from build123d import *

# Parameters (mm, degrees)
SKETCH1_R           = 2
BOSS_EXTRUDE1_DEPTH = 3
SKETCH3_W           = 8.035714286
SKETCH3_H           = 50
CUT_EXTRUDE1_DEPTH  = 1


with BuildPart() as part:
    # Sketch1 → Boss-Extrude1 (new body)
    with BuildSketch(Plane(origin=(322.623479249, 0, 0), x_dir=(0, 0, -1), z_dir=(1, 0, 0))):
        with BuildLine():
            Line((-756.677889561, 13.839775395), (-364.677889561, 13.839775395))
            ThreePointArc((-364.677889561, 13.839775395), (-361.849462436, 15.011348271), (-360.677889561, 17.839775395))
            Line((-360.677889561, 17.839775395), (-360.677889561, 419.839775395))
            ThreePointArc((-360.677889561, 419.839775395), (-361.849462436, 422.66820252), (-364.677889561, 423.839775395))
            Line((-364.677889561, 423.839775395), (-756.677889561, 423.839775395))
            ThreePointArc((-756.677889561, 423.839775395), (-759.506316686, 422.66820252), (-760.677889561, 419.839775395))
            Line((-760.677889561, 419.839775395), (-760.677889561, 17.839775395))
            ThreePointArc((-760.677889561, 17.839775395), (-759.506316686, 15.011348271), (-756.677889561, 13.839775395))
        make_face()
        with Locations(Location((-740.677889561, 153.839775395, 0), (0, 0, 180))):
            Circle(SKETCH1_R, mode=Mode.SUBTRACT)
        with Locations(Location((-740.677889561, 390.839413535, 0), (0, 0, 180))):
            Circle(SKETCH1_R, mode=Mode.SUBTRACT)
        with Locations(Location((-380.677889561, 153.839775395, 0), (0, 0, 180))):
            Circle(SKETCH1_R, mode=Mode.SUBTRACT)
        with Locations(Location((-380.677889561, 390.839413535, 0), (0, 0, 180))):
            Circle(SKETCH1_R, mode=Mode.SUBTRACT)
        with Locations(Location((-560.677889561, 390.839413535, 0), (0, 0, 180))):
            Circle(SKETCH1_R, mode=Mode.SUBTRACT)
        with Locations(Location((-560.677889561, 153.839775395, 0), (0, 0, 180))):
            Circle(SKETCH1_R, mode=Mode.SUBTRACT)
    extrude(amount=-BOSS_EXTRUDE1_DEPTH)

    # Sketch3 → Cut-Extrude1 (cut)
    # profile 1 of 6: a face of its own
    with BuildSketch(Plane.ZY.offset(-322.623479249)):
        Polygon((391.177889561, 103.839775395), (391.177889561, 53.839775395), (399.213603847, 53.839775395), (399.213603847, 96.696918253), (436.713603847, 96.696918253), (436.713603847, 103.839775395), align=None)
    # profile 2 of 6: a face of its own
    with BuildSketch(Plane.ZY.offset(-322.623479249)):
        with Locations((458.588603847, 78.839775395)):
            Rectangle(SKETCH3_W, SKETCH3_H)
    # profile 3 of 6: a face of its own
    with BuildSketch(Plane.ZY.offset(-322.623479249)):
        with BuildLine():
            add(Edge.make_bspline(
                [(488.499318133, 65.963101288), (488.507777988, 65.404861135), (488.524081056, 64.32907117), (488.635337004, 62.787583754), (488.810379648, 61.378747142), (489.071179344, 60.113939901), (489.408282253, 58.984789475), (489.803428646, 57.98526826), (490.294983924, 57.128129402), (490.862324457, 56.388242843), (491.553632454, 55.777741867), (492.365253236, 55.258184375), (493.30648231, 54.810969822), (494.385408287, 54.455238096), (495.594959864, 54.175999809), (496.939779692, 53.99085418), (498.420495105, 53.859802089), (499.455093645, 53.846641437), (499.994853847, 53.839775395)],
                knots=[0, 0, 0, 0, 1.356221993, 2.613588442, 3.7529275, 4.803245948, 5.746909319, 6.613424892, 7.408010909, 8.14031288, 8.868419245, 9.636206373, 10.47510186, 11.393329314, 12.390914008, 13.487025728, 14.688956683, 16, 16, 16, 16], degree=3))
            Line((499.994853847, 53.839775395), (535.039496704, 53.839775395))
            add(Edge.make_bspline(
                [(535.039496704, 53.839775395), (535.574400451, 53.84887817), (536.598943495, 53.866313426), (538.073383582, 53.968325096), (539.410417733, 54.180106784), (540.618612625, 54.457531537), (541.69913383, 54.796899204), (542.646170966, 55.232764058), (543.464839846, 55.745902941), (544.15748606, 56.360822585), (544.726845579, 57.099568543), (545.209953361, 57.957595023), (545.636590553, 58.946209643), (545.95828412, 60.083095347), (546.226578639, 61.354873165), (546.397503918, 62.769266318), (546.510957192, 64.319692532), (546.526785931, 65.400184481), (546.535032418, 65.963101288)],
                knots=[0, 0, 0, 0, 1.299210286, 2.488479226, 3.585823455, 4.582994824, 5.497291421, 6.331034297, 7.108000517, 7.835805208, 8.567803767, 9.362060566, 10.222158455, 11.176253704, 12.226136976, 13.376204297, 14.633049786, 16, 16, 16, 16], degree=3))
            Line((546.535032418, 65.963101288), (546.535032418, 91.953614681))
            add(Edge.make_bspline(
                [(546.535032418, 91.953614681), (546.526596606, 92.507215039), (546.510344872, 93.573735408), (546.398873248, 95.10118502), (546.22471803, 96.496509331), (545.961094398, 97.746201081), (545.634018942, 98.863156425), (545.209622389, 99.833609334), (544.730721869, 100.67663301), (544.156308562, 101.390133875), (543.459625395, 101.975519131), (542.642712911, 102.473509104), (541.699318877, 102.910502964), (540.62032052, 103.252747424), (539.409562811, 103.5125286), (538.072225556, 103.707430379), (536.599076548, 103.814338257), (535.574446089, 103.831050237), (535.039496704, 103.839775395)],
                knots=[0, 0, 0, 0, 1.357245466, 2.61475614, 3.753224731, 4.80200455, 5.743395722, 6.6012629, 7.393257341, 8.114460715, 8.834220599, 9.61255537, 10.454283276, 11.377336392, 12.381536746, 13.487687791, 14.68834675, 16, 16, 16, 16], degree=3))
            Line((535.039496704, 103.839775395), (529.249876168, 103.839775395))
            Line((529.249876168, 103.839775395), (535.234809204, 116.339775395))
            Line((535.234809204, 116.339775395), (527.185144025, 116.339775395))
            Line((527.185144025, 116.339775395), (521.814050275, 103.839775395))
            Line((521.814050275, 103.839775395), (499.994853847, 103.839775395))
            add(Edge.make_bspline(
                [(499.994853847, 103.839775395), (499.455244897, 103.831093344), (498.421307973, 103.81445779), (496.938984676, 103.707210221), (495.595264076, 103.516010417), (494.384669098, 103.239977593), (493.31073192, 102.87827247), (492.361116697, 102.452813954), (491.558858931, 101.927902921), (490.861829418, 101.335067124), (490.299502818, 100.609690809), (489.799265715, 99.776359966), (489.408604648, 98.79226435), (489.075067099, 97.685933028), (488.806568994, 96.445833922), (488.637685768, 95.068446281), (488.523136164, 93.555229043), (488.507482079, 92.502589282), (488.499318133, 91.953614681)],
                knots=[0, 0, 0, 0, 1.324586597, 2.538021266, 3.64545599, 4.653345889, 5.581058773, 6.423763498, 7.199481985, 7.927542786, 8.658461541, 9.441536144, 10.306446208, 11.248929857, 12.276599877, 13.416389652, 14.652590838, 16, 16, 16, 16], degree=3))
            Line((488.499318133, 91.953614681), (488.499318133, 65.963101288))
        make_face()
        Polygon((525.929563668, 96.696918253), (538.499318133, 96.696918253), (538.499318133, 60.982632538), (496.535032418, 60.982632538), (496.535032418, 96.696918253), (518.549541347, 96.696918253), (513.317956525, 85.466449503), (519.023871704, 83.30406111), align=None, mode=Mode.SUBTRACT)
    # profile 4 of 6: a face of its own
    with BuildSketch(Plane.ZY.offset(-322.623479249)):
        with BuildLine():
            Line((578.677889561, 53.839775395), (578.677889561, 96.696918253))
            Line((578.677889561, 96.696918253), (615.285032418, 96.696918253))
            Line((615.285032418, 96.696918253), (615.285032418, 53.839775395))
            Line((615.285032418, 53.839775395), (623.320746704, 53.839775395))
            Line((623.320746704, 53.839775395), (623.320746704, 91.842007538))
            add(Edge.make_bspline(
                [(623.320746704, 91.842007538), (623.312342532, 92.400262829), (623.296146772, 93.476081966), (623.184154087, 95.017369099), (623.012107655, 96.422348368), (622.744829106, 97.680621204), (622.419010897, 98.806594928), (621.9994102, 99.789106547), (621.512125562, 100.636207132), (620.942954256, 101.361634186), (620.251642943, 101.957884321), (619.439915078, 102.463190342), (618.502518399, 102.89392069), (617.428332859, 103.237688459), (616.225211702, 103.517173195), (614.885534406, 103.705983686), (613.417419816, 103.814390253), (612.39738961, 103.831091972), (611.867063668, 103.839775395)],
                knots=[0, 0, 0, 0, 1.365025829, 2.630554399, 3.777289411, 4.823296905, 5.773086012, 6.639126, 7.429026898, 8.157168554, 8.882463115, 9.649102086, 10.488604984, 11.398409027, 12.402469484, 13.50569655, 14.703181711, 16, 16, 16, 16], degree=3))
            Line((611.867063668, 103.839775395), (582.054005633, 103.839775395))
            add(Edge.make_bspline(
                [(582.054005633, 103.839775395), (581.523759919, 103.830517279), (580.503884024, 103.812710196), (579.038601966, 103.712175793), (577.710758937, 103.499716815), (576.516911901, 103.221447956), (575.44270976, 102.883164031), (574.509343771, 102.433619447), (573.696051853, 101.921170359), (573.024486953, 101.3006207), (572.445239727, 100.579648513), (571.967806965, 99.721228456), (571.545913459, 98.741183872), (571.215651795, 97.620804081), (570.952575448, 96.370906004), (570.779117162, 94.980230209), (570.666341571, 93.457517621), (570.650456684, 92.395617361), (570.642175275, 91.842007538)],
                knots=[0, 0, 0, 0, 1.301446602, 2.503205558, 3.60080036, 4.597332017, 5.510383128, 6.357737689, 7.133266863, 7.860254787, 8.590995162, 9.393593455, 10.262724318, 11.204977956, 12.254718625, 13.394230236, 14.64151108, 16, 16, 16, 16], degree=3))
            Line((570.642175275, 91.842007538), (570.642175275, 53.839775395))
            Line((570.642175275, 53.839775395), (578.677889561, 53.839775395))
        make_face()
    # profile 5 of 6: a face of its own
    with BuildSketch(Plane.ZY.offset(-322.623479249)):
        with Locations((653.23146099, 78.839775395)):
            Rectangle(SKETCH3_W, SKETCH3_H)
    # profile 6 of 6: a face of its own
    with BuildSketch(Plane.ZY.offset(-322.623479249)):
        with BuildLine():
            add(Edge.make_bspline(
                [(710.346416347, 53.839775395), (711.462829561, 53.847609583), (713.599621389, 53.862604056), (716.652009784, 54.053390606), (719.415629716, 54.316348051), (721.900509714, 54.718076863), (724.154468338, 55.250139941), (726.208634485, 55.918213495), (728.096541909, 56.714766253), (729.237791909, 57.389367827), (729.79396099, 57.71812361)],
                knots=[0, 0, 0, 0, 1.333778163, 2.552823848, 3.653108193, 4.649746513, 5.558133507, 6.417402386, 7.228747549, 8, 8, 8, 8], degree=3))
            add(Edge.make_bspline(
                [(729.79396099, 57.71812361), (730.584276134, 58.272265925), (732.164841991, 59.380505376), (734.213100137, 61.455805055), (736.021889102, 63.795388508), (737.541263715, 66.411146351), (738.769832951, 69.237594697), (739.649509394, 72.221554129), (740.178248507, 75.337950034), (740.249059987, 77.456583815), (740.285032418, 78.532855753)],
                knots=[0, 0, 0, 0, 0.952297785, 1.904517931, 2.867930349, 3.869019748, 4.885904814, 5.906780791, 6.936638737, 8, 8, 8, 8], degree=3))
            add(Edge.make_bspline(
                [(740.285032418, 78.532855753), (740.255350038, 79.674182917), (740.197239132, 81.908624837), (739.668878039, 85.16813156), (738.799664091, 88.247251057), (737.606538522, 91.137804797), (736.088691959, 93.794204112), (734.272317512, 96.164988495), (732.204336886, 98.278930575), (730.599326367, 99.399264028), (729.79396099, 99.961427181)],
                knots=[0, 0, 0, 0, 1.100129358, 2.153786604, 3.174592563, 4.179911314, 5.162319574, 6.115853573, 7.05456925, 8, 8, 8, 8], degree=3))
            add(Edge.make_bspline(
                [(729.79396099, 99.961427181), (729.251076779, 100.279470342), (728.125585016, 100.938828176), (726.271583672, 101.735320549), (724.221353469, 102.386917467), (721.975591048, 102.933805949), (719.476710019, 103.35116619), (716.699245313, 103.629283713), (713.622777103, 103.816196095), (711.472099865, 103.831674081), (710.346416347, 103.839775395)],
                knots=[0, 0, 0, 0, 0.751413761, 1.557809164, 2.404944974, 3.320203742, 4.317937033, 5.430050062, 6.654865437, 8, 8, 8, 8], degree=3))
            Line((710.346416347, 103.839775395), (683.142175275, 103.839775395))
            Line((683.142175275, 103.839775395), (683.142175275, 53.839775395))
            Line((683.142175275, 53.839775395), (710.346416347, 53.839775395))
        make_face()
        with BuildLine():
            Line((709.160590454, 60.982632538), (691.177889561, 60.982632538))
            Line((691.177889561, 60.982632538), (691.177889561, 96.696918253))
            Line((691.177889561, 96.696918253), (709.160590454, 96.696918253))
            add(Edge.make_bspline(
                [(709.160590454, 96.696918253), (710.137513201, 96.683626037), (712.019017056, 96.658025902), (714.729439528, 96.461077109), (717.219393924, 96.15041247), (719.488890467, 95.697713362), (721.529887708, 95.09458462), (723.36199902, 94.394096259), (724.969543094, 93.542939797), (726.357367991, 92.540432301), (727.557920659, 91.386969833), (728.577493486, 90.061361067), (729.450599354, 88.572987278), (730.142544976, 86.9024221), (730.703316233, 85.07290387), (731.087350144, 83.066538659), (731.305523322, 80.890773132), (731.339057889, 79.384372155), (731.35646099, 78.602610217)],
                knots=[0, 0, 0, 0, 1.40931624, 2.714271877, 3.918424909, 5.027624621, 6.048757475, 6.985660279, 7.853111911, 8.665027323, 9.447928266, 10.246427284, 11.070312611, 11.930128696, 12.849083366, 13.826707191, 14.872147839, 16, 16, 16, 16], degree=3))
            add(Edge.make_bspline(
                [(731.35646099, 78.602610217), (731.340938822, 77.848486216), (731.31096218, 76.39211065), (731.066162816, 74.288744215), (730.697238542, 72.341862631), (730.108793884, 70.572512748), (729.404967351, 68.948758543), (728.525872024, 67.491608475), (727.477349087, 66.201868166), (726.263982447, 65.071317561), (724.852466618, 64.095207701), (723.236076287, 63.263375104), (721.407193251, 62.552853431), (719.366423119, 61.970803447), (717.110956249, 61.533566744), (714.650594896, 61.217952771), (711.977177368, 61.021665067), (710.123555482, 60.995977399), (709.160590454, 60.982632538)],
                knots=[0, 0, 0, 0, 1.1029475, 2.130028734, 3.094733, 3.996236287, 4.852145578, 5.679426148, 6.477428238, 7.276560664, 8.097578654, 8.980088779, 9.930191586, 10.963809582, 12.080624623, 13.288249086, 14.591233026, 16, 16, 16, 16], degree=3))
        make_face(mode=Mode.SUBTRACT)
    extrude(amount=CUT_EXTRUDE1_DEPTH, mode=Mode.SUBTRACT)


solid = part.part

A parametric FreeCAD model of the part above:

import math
import FreeCAD as App
import Part
import Sketcher

V = App.Vector


def add_polygon(sketch, points):
    """Adds a closed chain of lines whose ends are joined by coincident constraints."""
    first, n = sketch.GeometryCount, len(points)
    for a, b in zip(points, points[1:] + points[:1]):
        sketch.addGeometry(Part.LineSegment(App.Vector(*a, 0), App.Vector(*b, 0)), False)
    for i in range(n):
        sketch.addConstraint(Sketcher.Constraint("Coincident", first + i, 2, first + (i + 1) % n, 1))

doc = App.newDocument("Part")
params = doc.addObject("Spreadsheet::Sheet", "Params")
for row, (alias, value) in enumerate([
    ("sketch1_diameter", "4 mm"),
    ("sketch1_radius", "4 mm"),
    ("sketch1_width", "402 mm"),
    ("sketch1_height", "392 mm"),
    ("pad1_length", "3 mm"),
    ("sketch2_width", "50 mm"),
    ("sketch2_width2", "50 mm"),
    ("sketch2_width3", "50 mm"),
    ("sketch2_height", "37.5 mm"),
    ("pocket1_length", "1 mm"),
], start=1):
    params.set(f"A{row}", alias)
    params.set(f"B{row}", "=" + value)
    params.setAlias(f"B{row}", alias)

body = doc.addObject("PartDesign::Body", "Body")

sketch1 = doc.addObject("Sketcher::SketchObject", "Sketch")
body.addObject(sketch1)
sketch1.AttachmentSupport = (doc.YZ_Plane, [""])
sketch1.MapMode = "FlatFace"
sketch1.AttachmentOffset = App.Placement(V(0, 0, 322.623479), App.Rotation())
sketch1.addGeometry([
    Part.LineSegment(V(13.839775, 756.67789, 0), V(13.839775, 364.67789, 0)),
    Part.ArcOfCircle(Part.Circle(V(17.839775, 364.67789, 0), V(0, 0, 1), 4), math.radians(-180), math.radians(-90)),
    Part.LineSegment(V(17.839775, 360.67789, 0), V(419.839775, 360.67789, 0)),
    Part.ArcOfCircle(Part.Circle(V(419.839775, 364.67789, 0), V(0, 0, 1), 4), math.radians(-90), math.radians(0)),
    Part.LineSegment(V(423.839775, 364.67789, 0), V(423.839775, 756.67789, 0)),
    Part.ArcOfCircle(Part.Circle(V(419.839775, 756.67789, 0), V(0, 0, 1), 4), math.radians(0), math.radians(90)),
    Part.LineSegment(V(419.839775, 760.67789, 0), V(17.839775, 760.67789, 0)),
    Part.ArcOfCircle(Part.Circle(V(17.839775, 756.67789, 0), V(0, 0, 1), 4), math.radians(90), math.radians(180)),
    Part.Circle(V(153.839775, 740.67789, 0), V(0, 0, 1), 2),
    Part.Circle(V(153.839775, 560.67789, 0), V(0, 0, 1), 2),
    Part.Circle(V(153.839775, 380.67789, 0), V(0, 0, 1), 2),
    Part.Circle(V(390.839414, 740.67789, 0), V(0, 0, 1), 2),
    Part.Circle(V(390.839414, 560.67789, 0), V(0, 0, 1), 2),
    Part.Circle(V(390.839414, 380.67789, 0), V(0, 0, 1), 2),
], False)
sketch1.addConstraint([
    Sketcher.Constraint("Tangent", 0, 2, 1, 1),
    Sketcher.Constraint("Tangent", 1, 2, 2, 1),
    Sketcher.Constraint("Tangent", 2, 2, 3, 1),
    Sketcher.Constraint("Tangent", 3, 2, 4, 1),
    Sketcher.Constraint("Tangent", 4, 2, 5, 1),
    Sketcher.Constraint("Tangent", 5, 2, 6, 1),
    Sketcher.Constraint("Tangent", 6, 2, 7, 1),
    Sketcher.Constraint("Tangent", 7, 2, 0, 1),
    Sketcher.Constraint("Vertical", 0),
    Sketcher.Constraint("Horizontal", 2),
    Sketcher.Constraint("Vertical", 4),
    Sketcher.Constraint("Horizontal", 6),
    Sketcher.Constraint("Equal", 1, 3),
    Sketcher.Constraint("Equal", 3, 5),
    Sketcher.Constraint("Equal", 5, 7),
    Sketcher.Constraint("Equal", 8, 9),
    Sketcher.Constraint("Equal", 9, 10),
    Sketcher.Constraint("Equal", 10, 11),
    Sketcher.Constraint("Equal", 11, 12),
    Sketcher.Constraint("Equal", 12, 13),
    Sketcher.Constraint("Horizontal", 8, 3, 11, 3),
    Sketcher.Constraint("Horizontal", 9, 3, 12, 3),
    Sketcher.Constraint("Horizontal", 10, 3, 13, 3),
    Sketcher.Constraint("Vertical", 8, 3, 9, 3),
    Sketcher.Constraint("Vertical", 9, 3, 10, 3),
    Sketcher.Constraint("Vertical", 11, 3, 12, 3),
    Sketcher.Constraint("Vertical", 12, 3, 13, 3),
    Sketcher.Constraint("Diameter", 8, 4.0),
    Sketcher.Constraint("Radius", 1, 4.0),
    Sketcher.Constraint("DistanceX", 2, 1, 2, 2, 402.0),
    Sketcher.Constraint("DistanceY", 0, 2, 0, 1, 392.0),
    Sketcher.Constraint("DistanceX", 7, 3, 8, 3, 136.0),
    Sketcher.Constraint("DistanceY", 8, 3, 7, 3, 16.0),
    Sketcher.Constraint("DistanceY", 9, 3, 8, 3, 180.0),
    Sketcher.Constraint("DistanceY", 1, 3, 10, 3, 16.0),
    Sketcher.Constraint("DistanceY", -1, 1, 1, 3, 364.67789),
    Sketcher.Constraint("DistanceX", 11, 3, 5, 3, 29.000362),
    Sketcher.Constraint("DistanceX", -1, 1, 1, 3, 17.839775),
])
sketch1.setExpression("Constraints[27]", "Params.sketch1_diameter")
sketch1.setExpression("Constraints[28]", "Params.sketch1_radius")
sketch1.setExpression("Constraints[29]", "Params.sketch1_width")
sketch1.setExpression("Constraints[30]", "Params.sketch1_height")
pad1 = doc.addObject("PartDesign::Pad", "Pad")
body.addObject(pad1)
pad1.Profile = sketch1
pad1.setExpression("Length", "Params.pad1_length")
pad1.Reversed = True

sketch2 = doc.addObject("Sketcher::SketchObject", "Sketch001")
body.addObject(sketch2)
sketch2.AttachmentSupport = (doc.YZ_Plane, [""])
sketch2.MapMode = "FlatFace"
sketch2.AttachmentOffset = App.Placement(V(0, 0, 322.623479), App.Rotation())
add_polygon(sketch2, [(103.839775, 391.17789), (53.839775, 391.17789), (53.839775, 399.213604), (96.696918, 399.213604), (96.696918, 436.713604), (103.839775, 436.713604)])
add_polygon(sketch2, [(103.839775, 454.570747), (53.839775, 454.570747), (53.839775, 462.606461), (103.839775, 462.606461)])
sketch2.addGeometry(Part.BSplineCurve([V(65.963101, 488.499318, 0), V(65.404861, 488.507778, 0), V(64.329071, 488.524081, 0), V(62.787584, 488.635337, 0), V(61.378747, 488.81038, 0), V(60.11394, 489.071179, 0), V(58.984789, 489.408282, 0), V(57.985268, 489.803429, 0), V(57.128129, 490.294984, 0), V(56.388243, 490.862324, 0), V(55.777742, 491.553632, 0), V(55.258184, 492.365253, 0), V(54.81097, 493.306482, 0), V(54.455238, 494.385408, 0), V(54.176, 495.59496, 0), V(53.990854, 496.93978, 0), V(53.859802, 498.420495, 0), V(53.846641, 499.455094, 0), V(53.839775, 499.994854, 0)], [4, 1, 1, 1, 1, 1, 1, 1, 1, 1, 1, 1, 1, 1, 1, 1, 4], [0, 1.356221993, 2.613588442, 3.7529275, 4.803245948, 5.746909319, 6.613424892, 7.408010909, 8.14031288, 8.868419245, 9.636206373, 10.47510186, 11.393329314, 12.390914008, 13.487025728, 14.688956683, 16], False, 3, [1, 1, 1, 1, 1, 1, 1, 1, 1, 1, 1, 1, 1, 1, 1, 1, 1, 1, 1], False), False)
sketch2.addGeometry(Part.LineSegment(V(53.839775, 499.994854, 0), V(53.839775, 535.039497, 0)), False)
sketch2.addGeometry(Part.BSplineCurve([V(53.839775, 535.039497, 0), V(53.848878, 535.5744, 0), V(53.866313, 536.598943, 0), V(53.968325, 538.073384, 0), V(54.180107, 539.410418, 0), V(54.457532, 540.618613, 0), V(54.796899, 541.699134, 0), V(55.232764, 542.646171, 0), V(55.745903, 543.46484, 0), V(56.360823, 544.157486, 0), V(57.099569, 544.726846, 0), V(57.957595, 545.209953, 0), V(58.94621, 545.636591, 0), V(60.083095, 545.958284, 0), V(61.354873, 546.226579, 0), V(62.769266, 546.397504, 0), V(64.319693, 546.510957, 0), V(65.400184, 546.526786, 0), V(65.963101, 546.535032, 0)], [4, 1, 1, 1, 1, 1, 1, 1, 1, 1, 1, 1, 1, 1, 1, 1, 4], [0, 1.299210286, 2.488479226, 3.585823455, 4.582994824, 5.497291421, 6.331034297, 7.108000517, 7.835805208, 8.567803767, 9.362060566, 10.222158455, 11.176253704, 12.226136976, 13.376204297, 14.633049786, 16], False, 3, [1, 1, 1, 1, 1, 1, 1, 1, 1, 1, 1, 1, 1, 1, 1, 1, 1, 1, 1], False), False)
sketch2.addGeometry(Part.LineSegment(V(65.963101, 546.535032, 0), V(91.953615, 546.535032, 0)), False)
sketch2.addGeometry(Part.BSplineCurve([V(91.953615, 546.535032, 0), V(92.507215, 546.526597, 0), V(93.573735, 546.510345, 0), V(95.101185, 546.398873, 0), V(96.496509, 546.224718, 0), V(97.746201, 545.961094, 0), V(98.863156, 545.634019, 0), V(99.833609, 545.209622, 0), V(100.676633, 544.730722, 0), V(101.390134, 544.156309, 0), V(101.975519, 543.459625, 0), V(102.473509, 542.642713, 0), V(102.910503, 541.699319, 0), V(103.252747, 540.620321, 0), V(103.512529, 539.409563, 0), V(103.70743, 538.072226, 0), V(103.814338, 536.599077, 0), V(103.83105, 535.574446, 0), V(103.839775, 535.039497, 0)], [4, 1, 1, 1, 1, 1, 1, 1, 1, 1, 1, 1, 1, 1, 1, 1, 4], [0, 1.357245466, 2.61475614, 3.753224731, 4.80200455, 5.743395722, 6.6012629, 7.393257341, 8.114460715, 8.834220599, 9.61255537, 10.454283276, 11.377336392, 12.381536746, 13.487687791, 14.68834675, 16], False, 3, [1, 1, 1, 1, 1, 1, 1, 1, 1, 1, 1, 1, 1, 1, 1, 1, 1, 1, 1], False), False)
sketch2.addGeometry(Part.LineSegment(V(103.839775, 535.039497, 0), V(103.839775, 529.249876, 0)), False)
sketch2.addGeometry(Part.LineSegment(V(103.839775, 529.249876, 0), V(116.339775, 535.234809, 0)), False)
sketch2.addGeometry(Part.LineSegment(V(116.339775, 535.234809, 0), V(116.339775, 527.185144, 0)), False)
sketch2.addGeometry(Part.LineSegment(V(116.339775, 527.185144, 0), V(103.839775, 521.81405, 0)), False)
sketch2.addGeometry(Part.LineSegment(V(103.839775, 521.81405, 0), V(103.839775, 499.994854, 0)), False)
sketch2.addGeometry(Part.BSplineCurve([V(103.839775, 499.994854, 0), V(103.831093, 499.455245, 0), V(103.814458, 498.421308, 0), V(103.70721, 496.938985, 0), V(103.51601, 495.595264, 0), V(103.239978, 494.384669, 0), V(102.878272, 493.310732, 0), V(102.452814, 492.361117, 0), V(101.927903, 491.558859, 0), V(101.335067, 490.861829, 0), V(100.609691, 490.299503, 0), V(99.77636, 489.799266, 0), V(98.792264, 489.408605, 0), V(97.685933, 489.075067, 0), V(96.445834, 488.806569, 0), V(95.068446, 488.637686, 0), V(93.555229, 488.523136, 0), V(92.502589, 488.507482, 0), V(91.953615, 488.499318, 0)], [4, 1, 1, 1, 1, 1, 1, 1, 1, 1, 1, 1, 1, 1, 1, 1, 4], [0, 1.324586597, 2.538021266, 3.64545599, 4.653345889, 5.581058773, 6.423763498, 7.199481985, 7.927542786, 8.658461541, 9.441536144, 10.306446208, 11.248929857, 12.276599877, 13.416389652, 14.652590838, 16], False, 3, [1, 1, 1, 1, 1, 1, 1, 1, 1, 1, 1, 1, 1, 1, 1, 1, 1, 1, 1], False), False)
sketch2.addGeometry(Part.LineSegment(V(91.953615, 488.499318, 0), V(65.963101, 488.499318, 0)), False)
add_polygon(sketch2, [(83.304061, 519.023872), (96.696918, 525.929564), (96.696918, 538.499318), (60.982633, 538.499318), (60.982633, 496.535032), (96.696918, 496.535032), (96.696918, 518.549541), (85.46645, 513.317957)])
sketch2.addGeometry(Part.LineSegment(V(53.839775, 578.67789, 0), V(96.696918, 578.67789, 0)), False)
sketch2.addGeometry(Part.LineSegment(V(96.696918, 578.67789, 0), V(96.696918, 615.285032, 0)), False)
sketch2.addGeometry(Part.LineSegment(V(96.696918, 615.285032, 0), V(53.839775, 615.285032, 0)), False)
sketch2.addGeometry(Part.LineSegment(V(53.839775, 615.285032, 0), V(53.839775, 623.320747, 0)), False)
sketch2.addGeometry(Part.LineSegment(V(53.839775, 623.320747, 0), V(91.842008, 623.320747, 0)), False)
sketch2.addGeometry(Part.BSplineCurve([V(91.842008, 623.320747, 0), V(92.400263, 623.312343, 0), V(93.476082, 623.296147, 0), V(95.017369, 623.184154, 0), V(96.422348, 623.012108, 0), V(97.680621, 622.744829, 0), V(98.806595, 622.419011, 0), V(99.789107, 621.99941, 0), V(100.636207, 621.512126, 0), V(101.361634, 620.942954, 0), V(101.957884, 620.251643, 0), V(102.46319, 619.439915, 0), V(102.893921, 618.502518, 0), V(103.237688, 617.428333, 0), V(103.517173, 616.225212, 0), V(103.705984, 614.885534, 0), V(103.81439, 613.41742, 0), V(103.831092, 612.39739, 0), V(103.839775, 611.867064, 0)], [4, 1, 1, 1, 1, 1, 1, 1, 1, 1, 1, 1, 1, 1, 1, 1, 4], [0, 1.365025829, 2.630554399, 3.777289411, 4.823296905, 5.773086012, 6.639126, 7.429026898, 8.157168554, 8.882463115, 9.649102086, 10.488604984, 11.398409027, 12.402469484, 13.50569655, 14.703181711, 16], False, 3, [1, 1, 1, 1, 1, 1, 1, 1, 1, 1, 1, 1, 1, 1, 1, 1, 1, 1, 1], False), False)
sketch2.addGeometry(Part.LineSegment(V(103.839775, 611.867064, 0), V(103.839775, 582.054006, 0)), False)
sketch2.addGeometry(Part.BSplineCurve([V(103.839775, 582.054006, 0), V(103.830517, 581.52376, 0), V(103.81271, 580.503884, 0), V(103.712176, 579.038602, 0), V(103.499717, 577.710759, 0), V(103.221448, 576.516912, 0), V(102.883164, 575.44271, 0), V(102.433619, 574.509344, 0), V(101.92117, 573.696052, 0), V(101.300621, 573.024487, 0), V(100.579649, 572.44524, 0), V(99.721228, 571.967807, 0), V(98.741184, 571.545913, 0), V(97.620804, 571.215652, 0), V(96.370906, 570.952575, 0), V(94.98023, 570.779117, 0), V(93.457518, 570.666342, 0), V(92.395617, 570.650457, 0), V(91.842008, 570.642175, 0)], [4, 1, 1, 1, 1, 1, 1, 1, 1, 1, 1, 1, 1, 1, 1, 1, 4], [0, 1.301446602, 2.503205558, 3.60080036, 4.597332017, 5.510383128, 6.357737689, 7.133266863, 7.860254787, 8.590995162, 9.393593455, 10.262724318, 11.204977956, 12.254718625, 13.394230236, 14.64151108, 16], False, 3, [1, 1, 1, 1, 1, 1, 1, 1, 1, 1, 1, 1, 1, 1, 1, 1, 1, 1, 1], False), False)
sketch2.addGeometry(Part.LineSegment(V(91.842008, 570.642175, 0), V(53.839775, 570.642175, 0)), False)
sketch2.addGeometry(Part.LineSegment(V(53.839775, 570.642175, 0), V(53.839775, 578.67789, 0)), False)
add_polygon(sketch2, [(103.839775, 649.213604), (53.839775, 649.213604), (53.839775, 657.249318), (103.839775, 657.249318)])
sketch2.addGeometry(Part.BSplineCurve([V(53.839775, 710.346416, 0), V(53.84761, 711.46283, 0), V(53.862604, 713.599621, 0), V(54.053391, 716.65201, 0), V(54.316348, 719.41563, 0), V(54.718077, 721.90051, 0), V(55.25014, 724.154468, 0), V(55.918213, 726.208634, 0), V(56.714766, 728.096542, 0), V(57.389368, 729.237792, 0), V(57.718124, 729.793961, 0)], [4, 1, 1, 1, 1, 1, 1, 1, 4], [0, 1.333778163, 2.552823848, 3.653108193, 4.649746513, 5.558133507, 6.417402386, 7.228747549, 8], False, 3, [1, 1, 1, 1, 1, 1, 1, 1, 1, 1, 1], False), False)
sketch2.addGeometry(Part.BSplineCurve([V(57.718124, 729.793961, 0), V(58.272266, 730.584276, 0), V(59.380505, 732.164842, 0), V(61.455805, 734.2131, 0), V(63.795389, 736.021889, 0), V(66.411146, 737.541264, 0), V(69.237595, 738.769833, 0), V(72.221554, 739.649509, 0), V(75.33795, 740.178249, 0), V(77.456584, 740.24906, 0), V(78.532856, 740.285032, 0)], [4, 1, 1, 1, 1, 1, 1, 1, 4], [0, 0.952297785, 1.904517931, 2.867930349, 3.869019748, 4.885904814, 5.906780791, 6.936638737, 8], False, 3, [1, 1, 1, 1, 1, 1, 1, 1, 1, 1, 1], False), False)
sketch2.addGeometry(Part.BSplineCurve([V(78.532856, 740.285032, 0), V(79.674183, 740.25535, 0), V(81.908625, 740.197239, 0), V(85.168132, 739.668878, 0), V(88.247251, 738.799664, 0), V(91.137805, 737.606539, 0), V(93.794204, 736.088692, 0), V(96.164988, 734.272318, 0), V(98.278931, 732.204337, 0), V(99.399264, 730.599326, 0), V(99.961427, 729.793961, 0)], [4, 1, 1, 1, 1, 1, 1, 1, 4], [0, 1.100129358, 2.153786604, 3.174592563, 4.179911314, 5.162319574, 6.115853573, 7.05456925, 8], False, 3, [1, 1, 1, 1, 1, 1, 1, 1, 1, 1, 1], False), False)
sketch2.addGeometry(Part.BSplineCurve([V(99.961427, 729.793961, 0), V(100.27947, 729.251077, 0), V(100.938828, 728.125585, 0), V(101.735321, 726.271584, 0), V(102.386917, 724.221353, 0), V(102.933806, 721.975591, 0), V(103.351166, 719.47671, 0), V(103.629284, 716.699245, 0), V(103.816196, 713.622777, 0), V(103.831674, 711.4721, 0), V(103.839775, 710.346416, 0)], [4, 1, 1, 1, 1, 1, 1, 1, 4], [0, 0.751413761, 1.557809164, 2.404944974, 3.320203742, 4.317937033, 5.430050062, 6.654865437, 8], False, 3, [1, 1, 1, 1, 1, 1, 1, 1, 1, 1, 1], False), False)
sketch2.addGeometry(Part.LineSegment(V(103.839775, 710.346416, 0), V(103.839775, 683.142175, 0)), False)
sketch2.addGeometry(Part.LineSegment(V(103.839775, 683.142175, 0), V(53.839775, 683.142175, 0)), False)
sketch2.addGeometry(Part.LineSegment(V(53.839775, 683.142175, 0), V(53.839775, 710.346416, 0)), False)
sketch2.addGeometry(Part.BSplineCurve([V(78.60261, 731.356461, 0), V(77.848486, 731.340939, 0), V(76.392111, 731.310962, 0), V(74.288744, 731.066163, 0), V(72.341863, 730.697239, 0), V(70.572513, 730.108794, 0), V(68.948759, 729.404967, 0), V(67.491608, 728.525872, 0), V(66.201868, 727.477349, 0), V(65.071318, 726.263982, 0), V(64.095208, 724.852467, 0), V(63.263375, 723.236076, 0), V(62.552853, 721.407193, 0), V(61.970803, 719.366423, 0), V(61.533567, 717.110956, 0), V(61.217953, 714.650595, 0), V(61.021665, 711.977177, 0), V(60.995977, 710.123555, 0), V(60.982633, 709.16059, 0)], [4, 1, 1, 1, 1, 1, 1, 1, 1, 1, 1, 1, 1, 1, 1, 1, 4], [0, 1.1029475, 2.130028734, 3.094733, 3.996236287, 4.852145578, 5.679426148, 6.477428238, 7.276560664, 8.097578654, 8.980088779, 9.930191586, 10.963809582, 12.080624623, 13.288249086, 14.591233026, 16], False, 3, [1, 1, 1, 1, 1, 1, 1, 1, 1, 1, 1, 1, 1, 1, 1, 1, 1, 1, 1], False), False)
sketch2.addGeometry(Part.LineSegment(V(60.982633, 709.16059, 0), V(60.982633, 691.17789, 0)), False)
sketch2.addGeometry(Part.LineSegment(V(60.982633, 691.17789, 0), V(96.696918, 691.17789, 0)), False)
sketch2.addGeometry(Part.LineSegment(V(96.696918, 691.17789, 0), V(96.696918, 709.16059, 0)), False)
sketch2.addGeometry(Part.BSplineCurve([V(96.696918, 709.16059, 0), V(96.683626, 710.137513, 0), V(96.658026, 712.019017, 0), V(96.461077, 714.72944, 0), V(96.150412, 717.219394, 0), V(95.697713, 719.48889, 0), V(95.094585, 721.529888, 0), V(94.394096, 723.361999, 0), V(93.54294, 724.969543, 0), V(92.540432, 726.357368, 0), V(91.38697, 727.557921, 0), V(90.061361, 728.577493, 0), V(88.572987, 729.450599, 0), V(86.902422, 730.142545, 0), V(85.072904, 730.703316, 0), V(83.066539, 731.08735, 0), V(80.890773, 731.305523, 0), V(79.384372, 731.339058, 0), V(78.60261, 731.356461, 0)], [4, 1, 1, 1, 1, 1, 1, 1, 1, 1, 1, 1, 1, 1, 1, 1, 4], [0, 1.40931624, 2.714271877, 3.918424909, 5.027624621, 6.048757475, 6.985660279, 7.853111911, 8.665027323, 9.447928266, 10.246427284, 11.070312611, 11.930128696, 12.849083366, 13.826707191, 14.872147839, 16], False, 3, [1, 1, 1, 1, 1, 1, 1, 1, 1, 1, 1, 1, 1, 1, 1, 1, 1, 1, 1], False), False)
sketch2.addConstraint([
    Sketcher.Constraint("Block", 10),
    Sketcher.Constraint("Block", 12),
    Sketcher.Constraint("Block", 14),
    Sketcher.Constraint("Block", 20),
    Sketcher.Constraint("Block", 35),
    Sketcher.Constraint("Block", 37),
    Sketcher.Constraint("Block", 44),
    Sketcher.Constraint("Block", 45),
    Sketcher.Constraint("Block", 46),
    Sketcher.Constraint("Block", 47),
    Sketcher.Constraint("Block", 51),
    Sketcher.Constraint("Block", 55),
    Sketcher.Constraint("Coincident", 10, 2, 11, 1),
    Sketcher.Constraint("Coincident", 11, 2, 12, 1),
    Sketcher.Constraint("Coincident", 12, 2, 13, 1),
    Sketcher.Constraint("Coincident", 13, 2, 14, 1),
    Sketcher.Constraint("Coincident", 14, 2, 15, 1),
    Sketcher.Constraint("Coincident", 15, 2, 16, 1),
    Sketcher.Constraint("Coincident", 16, 2, 17, 1),
    Sketcher.Constraint("Coincident", 17, 2, 18, 1),
    Sketcher.Constraint("Coincident", 18, 2, 19, 1),
    Sketcher.Constraint("Coincident", 19, 2, 20, 1),
    Sketcher.Constraint("Coincident", 20, 2, 21, 1),
    Sketcher.Constraint("Coincident", 21, 2, 10, 1),
    Sketcher.Constraint("Coincident", 30, 2, 31, 1),
    Sketcher.Constraint("Coincident", 31, 2, 32, 1),
    Sketcher.Constraint("Coincident", 32, 2, 33, 1),
    Sketcher.Constraint("Coincident", 33, 2, 34, 1),
    Sketcher.Constraint("Coincident", 34, 2, 35, 1),
    Sketcher.Constraint("Coincident", 35, 2, 36, 1),
    Sketcher.Constraint("Coincident", 36, 2, 37, 1),
    Sketcher.Constraint("Coincident", 37, 2, 38, 1),
    Sketcher.Constraint("Coincident", 38, 2, 39, 1),
    Sketcher.Constraint("Coincident", 39, 2, 30, 1),
    Sketcher.Constraint("Coincident", 47, 2, 48, 1),
    Sketcher.Constraint("Coincident", 48, 2, 49, 1),
    Sketcher.Constraint("Coincident", 49, 2, 50, 1),
    Sketcher.Constraint("Coincident", 50, 2, 44, 1),
    Sketcher.Constraint("Coincident", 51, 2, 52, 1),
    Sketcher.Constraint("Coincident", 52, 2, 53, 1),
    Sketcher.Constraint("Coincident", 53, 2, 54, 1),
    Sketcher.Constraint("Coincident", 54, 2, 55, 1),
    Sketcher.Constraint("Horizontal", 0),
    Sketcher.Constraint("Vertical", 1),
    Sketcher.Constraint("Horizontal", 2),
    Sketcher.Constraint("Vertical", 3),
    Sketcher.Constraint("Horizontal", 4),
    Sketcher.Constraint("Vertical", 5),
    Sketcher.Constraint("Horizontal", 6),
    Sketcher.Constraint("Vertical", 7),
    Sketcher.Constraint("Horizontal", 8),
    Sketcher.Constraint("Vertical", 9),
    Sketcher.Constraint("Vertical", 15),
    Sketcher.Constraint("Vertical", 17),
    Sketcher.Constraint("Vertical", 19),
    Sketcher.Constraint("Vertical", 23),
    Sketcher.Constraint("Horizontal", 24),
    Sketcher.Constraint("Vertical", 25),
    Sketcher.Constraint("Horizontal", 26),
    Sketcher.Constraint("Vertical", 27),
    Sketcher.Constraint("Horizontal", 30),
    Sketcher.Constraint("Vertical", 31),
    Sketcher.Constraint("Horizontal", 32),
    Sketcher.Constraint("Vertical", 33),
    Sketcher.Constraint("Horizontal", 34),
    Sketcher.Constraint("Horizontal", 38),
    Sketcher.Constraint("Vertical", 39),
    Sketcher.Constraint("Horizontal", 40),
    Sketcher.Constraint("Vertical", 41),
    Sketcher.Constraint("Horizontal", 42),
    Sketcher.Constraint("Vertical", 43),
    Sketcher.Constraint("Vertical", 48),
    Sketcher.Constraint("Horizontal", 49),
    Sketcher.Constraint("Vertical", 50),
    Sketcher.Constraint("Vertical", 52),
    Sketcher.Constraint("Horizontal", 53),
    Sketcher.Constraint("Vertical", 54),
    Sketcher.Constraint("DistanceX", 0, 2, 0, 1, 50.0),
    Sketcher.Constraint("DistanceX", 6, 2, 6, 1, 50.0),
    Sketcher.Constraint("DistanceX", 40, 2, 40, 1, 50.0),
    Sketcher.Constraint("DistanceY", 3, 1, 3, 2, 37.5),
    Sketcher.Constraint("DistanceX", 6, 2, 4, 2, 50.0),
    Sketcher.Constraint("DistanceX", 11, 2, 8, 2, 50.0),
    Sketcher.Constraint("DistanceX", 33, 2, 42, 2, 50.0),
    Sketcher.Constraint("DistanceX", 41, 2, 48, 2, 50.0),
    Sketcher.Constraint("DistanceX", 15, 2, 16, 2, 12.5),
    Sketcher.Constraint("DistanceY", 13, 2, 31, 2, 68.75),
    Sketcher.Constraint("DistanceY", 52, 2, 52, 1, 17.982701),
    Sketcher.Constraint("DistanceY", 15, 2, 15, 1, 5.789621),
    Sketcher.Constraint("DistanceY", 27, 1, 27, 2, 22.014509),
    Sketcher.Constraint("DistanceY", 48, 2, 48, 1, 27.204241),
    Sketcher.Constraint("DistanceY", 41, 2, 50, 2, 53.097098),
    Sketcher.Constraint("Distance", 16, 13.858911),
    Sketcher.Constraint("DistanceX", 2, 1, 2, 2, 42.857143),
    Sketcher.Constraint("DistanceX", 24, 2, 24, 1, 35.714286),
    Sketcher.Constraint("DistanceX", 26, 1, 26, 2, 35.714286),
    Sketcher.Constraint("DistanceX", 30, 1, 30, 2, 42.857143),
    Sketcher.Constraint("DistanceX", 32, 2, 32, 1, 42.857143),
    Sketcher.Constraint("DistanceY", 1, 1, 1, 2, 8.035714),
    Sketcher.Constraint("DistanceY", 7, 1, 7, 2, 8.035714),
    Sketcher.Constraint("DistanceY", 17, 2, 17, 1, 8.049665),
    Sketcher.Constraint("DistanceY", 19, 2, 19, 1, 21.819196),
    Sketcher.Constraint("DistanceY", 23, 1, 23, 2, 12.569754),
    Sketcher.Constraint("DistanceY", 25, 2, 25, 1, 41.964286),
    Sketcher.Constraint("DistanceY", 31, 1, 31, 2, 36.607143),
    Sketcher.Constraint("DistanceY", 41, 1, 41, 2, 8.035714),
    Sketcher.Constraint("DistanceY", -1, 1, 0, 2, 391.17789),
    Sketcher.Constraint("DistanceY", -1, 1, 7, 2, 462.606461),
    Sketcher.Constraint("DistanceX", -1, 1, 22, 2, 96.696918),
    Sketcher.Constraint("DistanceY", -1, 1, 23, 2, 538.499318),
    Sketcher.Constraint("DistanceX", -1, 1, 28, 2, 85.46645),
    Sketcher.Constraint("DistanceX", -1, 1, 29, 2, 83.304061),
    Sketcher.Constraint("DistanceY", -1, 1, 29, 2, 519.023872),
    Sketcher.Constraint("Distance", 28, 12.389225),
])
sketch2.setExpression("Constraints[99]", "Params.sketch2_width")
sketch2.setExpression("Constraints[100]", "Params.sketch2_width2")
sketch2.setExpression("Constraints[101]", "Params.sketch2_width3")
sketch2.setExpression("Constraints[102]", "Params.sketch2_height")
pocket1 = doc.addObject("PartDesign::Pocket", "Pocket")
body.addObject(pocket1)
pocket1.Profile = sketch2
pocket1.setExpression("Length", "Params.pocket1_length")

doc.recompute()
